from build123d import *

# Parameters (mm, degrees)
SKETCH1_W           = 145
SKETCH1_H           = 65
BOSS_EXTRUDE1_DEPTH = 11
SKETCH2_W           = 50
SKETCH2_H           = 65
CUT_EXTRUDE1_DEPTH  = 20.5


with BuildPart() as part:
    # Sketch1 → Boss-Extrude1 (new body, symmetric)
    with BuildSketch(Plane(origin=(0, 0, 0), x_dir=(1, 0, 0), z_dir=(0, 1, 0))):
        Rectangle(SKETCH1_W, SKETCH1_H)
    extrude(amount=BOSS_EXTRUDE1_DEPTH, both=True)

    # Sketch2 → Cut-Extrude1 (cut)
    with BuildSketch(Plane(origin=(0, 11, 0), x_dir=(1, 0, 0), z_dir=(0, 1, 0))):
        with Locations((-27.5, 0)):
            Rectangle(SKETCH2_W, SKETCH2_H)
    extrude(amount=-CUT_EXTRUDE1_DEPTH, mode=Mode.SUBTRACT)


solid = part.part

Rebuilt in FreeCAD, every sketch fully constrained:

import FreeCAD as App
import Part
import Sketcher
from FreeCAD import Vector
Q = App.Units.Quantity


def add_polygon(sketch, points):
    """Adds a closed chain of lines whose ends are joined by coincident constraints."""
    first, n = sketch.GeometryCount, len(points)
    for a, b in zip(points, points[1:] + points[:1]):
        sketch.addGeometry(Part.LineSegment(App.Vector(*a, 0), App.Vector(*b, 0)), False)
    for i in range(n):
        sketch.addConstraint(Sketcher.Constraint("Coincident", first + i, 2, first + (i + 1) % n, 1))

doc = App.newDocument("Part")
body = doc.addObject("PartDesign::Body", "Body")

sketch1 = body.newObject("Sketcher::SketchObject", "Sketch")
sketch1.AttachmentSupport = (doc.getObject("XZ_Plane"), [""])
sketch1.MapMode = "FlatFace"
add_polygon(sketch1, [(-72, -32), (-72, 32), (72, 32), (72, -32)])
sketch1.addConstraint([
    Sketcher.Constraint("Vertical", 0),
    Sketcher.Constraint("Horizontal", 1),
    Sketcher.Constraint("Vertical", 2),
    Sketcher.Constraint("Horizontal", 3),
    Sketcher.Constraint("Symmetric", 0, 2, 2, 2, -1, 1),
    Sketcher.Constraint("DistanceX", 1, 1, 1, 2, Q("145 mm")),
    Sketcher.Constraint("DistanceY", 0, 1, 0, 2, Q("65 mm")),
])
pad1 = body.newObject("PartDesign::Pad", "Pad")
pad1.Profile = sketch1
pad1.Length = 22
pad1.Midplane = True

sketch2 = body.newObject("Sketcher::SketchObject", "Sketch001")
sketch2.AttachmentSupport = (doc.getObject("XZ_Plane"), [""])
sketch2.MapMode = "FlatFace"
sketch2.AttachmentOffset = App.Placement(Vector(0, 0, -11), App.Rotation())
add_polygon(sketch2, [(-52, -32), (-52, 32), (-2, 32), (-2, -32)])
sketch2.addConstraint([
    Sketcher.Constraint("Vertical", 0),
    Sketcher.Constraint("Horizontal", 1),
    Sketcher.Constraint("Vertical", 2),
    Sketcher.Constraint("Horizontal", 3),
    Sketcher.Constraint("DistanceX", 1, 1, 1, 2, Q("50 mm")),
    Sketcher.Constraint("DistanceY", 0, 1, 0, 2, Q("65 mm")),
    Sketcher.Constraint("DistanceX", 0, 2, -1, 1, Q("52.5 mm")),
    Sketcher.Constraint("DistanceY", -1, 1, 0, 2, Q("32.5 mm")),
])
pocket1 = body.newObject("PartDesign::Pocket", "Pocket")
pocket1.Profile = sketch2
pocket1.Length = 20.5
pocket1.Reversed = True

doc.recompute()
